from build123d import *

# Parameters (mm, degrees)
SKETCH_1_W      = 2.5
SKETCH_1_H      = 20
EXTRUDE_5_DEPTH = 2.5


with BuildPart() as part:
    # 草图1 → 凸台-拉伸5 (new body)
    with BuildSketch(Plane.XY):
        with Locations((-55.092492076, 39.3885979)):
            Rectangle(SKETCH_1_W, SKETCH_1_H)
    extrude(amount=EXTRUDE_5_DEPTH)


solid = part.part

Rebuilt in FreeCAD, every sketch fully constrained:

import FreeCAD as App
import Part
import Sketcher

V = App.Vector

doc = App.newDocument("Part")
body = doc.addObject("PartDesign::Body", "Body")

# Sketch on XY plane
sketch1 = body.newObject("Sketcher::SketchObject", "Sketch")
sketch1.AttachmentSupport = (doc.getObject("XY_Plane"), [""])
sketch1.MapMode = "FlatFace"
sketch1.addGeometry(Part.LineSegment(V(-56.342492, 49.388598, 0), V(-56.342492, 29.388598, 0)), False)
sketch1.addGeometry(Part.LineSegment(V(-56.342492, 29.388598, 0), V(-53.842492, 29.388598, 0)), False)
sketch1.addGeometry(Part.LineSegment(V(-53.842492, 29.388598, 0), V(-53.842492, 49.388598, 0)), False)
sketch1.addGeometry(Part.LineSegment(V(-53.842492, 49.388598, 0), V(-56.342492, 49.388598, 0)), False)
sketch1.addConstraint(Sketcher.Constraint("Coincident", 0, 2, 1, 1))
sketch1.addConstraint(Sketcher.Constraint("Coincident", 1, 2, 2, 1))
sketch1.addConstraint(Sketcher.Constraint("Coincident", 2, 2, 3, 1))
sketch1.addConstraint(Sketcher.Constraint("Coincident", 3, 2, 0, 1))
sketch1.addConstraint(Sketcher.Constraint("Vertical", 0))
sketch1.addConstraint(Sketcher.Constraint("Horizontal", 1))
sketch1.addConstraint(Sketcher.Constraint("Vertical", 2))
sketch1.addConstraint(Sketcher.Constraint("Horizontal", 3))
sketch1.addConstraint(Sketcher.Constraint("DistanceY", 0, 2, 0, 1, 20.0))
sketch1.addConstraint(Sketcher.Constraint("DistanceX", 1, 1, 1, 2, 2.5))
sketch1.addConstraint(Sketcher.Constraint("DistanceX", 0, 2, -1, 1, 56.342492))
sketch1.addConstraint(Sketcher.Constraint("DistanceY", -1, 1, 0, 2, 29.388598))
pad1 = body.newObject("PartDesign::Pad", "Pad")
pad1.Profile = sketch1
pad1.Length = 2.5

doc.recompute()
